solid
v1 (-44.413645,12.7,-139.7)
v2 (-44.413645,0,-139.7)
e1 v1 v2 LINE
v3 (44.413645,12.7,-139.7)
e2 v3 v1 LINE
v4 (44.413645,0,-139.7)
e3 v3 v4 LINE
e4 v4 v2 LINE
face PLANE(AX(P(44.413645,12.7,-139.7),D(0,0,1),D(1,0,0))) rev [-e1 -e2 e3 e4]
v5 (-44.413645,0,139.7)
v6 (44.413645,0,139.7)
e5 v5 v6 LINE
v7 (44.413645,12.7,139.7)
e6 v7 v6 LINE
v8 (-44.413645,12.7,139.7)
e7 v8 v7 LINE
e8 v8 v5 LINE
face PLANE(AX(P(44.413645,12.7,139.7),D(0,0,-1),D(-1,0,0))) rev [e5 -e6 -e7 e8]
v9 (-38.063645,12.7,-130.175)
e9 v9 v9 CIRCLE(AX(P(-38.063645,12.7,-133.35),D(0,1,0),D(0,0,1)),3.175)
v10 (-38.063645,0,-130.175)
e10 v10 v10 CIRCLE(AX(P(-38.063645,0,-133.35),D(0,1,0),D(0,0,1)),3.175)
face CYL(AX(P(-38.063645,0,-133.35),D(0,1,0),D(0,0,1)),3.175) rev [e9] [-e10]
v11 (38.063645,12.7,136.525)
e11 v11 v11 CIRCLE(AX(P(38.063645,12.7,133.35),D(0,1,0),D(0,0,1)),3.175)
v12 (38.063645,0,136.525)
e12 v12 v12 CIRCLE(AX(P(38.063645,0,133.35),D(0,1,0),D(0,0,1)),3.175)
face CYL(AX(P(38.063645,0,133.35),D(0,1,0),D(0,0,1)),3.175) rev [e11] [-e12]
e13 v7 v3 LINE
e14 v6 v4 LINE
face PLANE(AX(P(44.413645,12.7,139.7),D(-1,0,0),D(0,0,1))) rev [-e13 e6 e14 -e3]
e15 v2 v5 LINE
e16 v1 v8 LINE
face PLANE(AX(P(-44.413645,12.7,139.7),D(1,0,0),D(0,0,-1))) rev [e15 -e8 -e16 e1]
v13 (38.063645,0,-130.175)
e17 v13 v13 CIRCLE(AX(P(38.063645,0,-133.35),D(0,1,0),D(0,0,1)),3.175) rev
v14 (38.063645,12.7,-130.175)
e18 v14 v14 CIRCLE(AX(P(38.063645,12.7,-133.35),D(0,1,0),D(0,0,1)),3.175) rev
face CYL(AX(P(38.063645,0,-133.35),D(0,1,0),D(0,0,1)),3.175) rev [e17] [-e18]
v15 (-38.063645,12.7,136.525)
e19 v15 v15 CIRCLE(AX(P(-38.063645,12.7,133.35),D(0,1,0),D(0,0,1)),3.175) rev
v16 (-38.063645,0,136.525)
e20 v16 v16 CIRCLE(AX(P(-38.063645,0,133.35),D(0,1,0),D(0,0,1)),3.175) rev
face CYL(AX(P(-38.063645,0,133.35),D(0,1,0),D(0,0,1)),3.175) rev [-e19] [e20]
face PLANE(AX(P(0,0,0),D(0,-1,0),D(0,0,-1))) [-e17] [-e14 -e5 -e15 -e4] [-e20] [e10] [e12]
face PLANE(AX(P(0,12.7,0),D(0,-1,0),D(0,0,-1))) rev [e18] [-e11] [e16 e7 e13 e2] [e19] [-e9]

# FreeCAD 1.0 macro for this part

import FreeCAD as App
import Part
import Sketcher

V = App.Vector
Q = App.Units.Quantity

doc = App.newDocument("Part")
body = doc.addObject("PartDesign::Body", "Body")

sketch1 = body.newObject("Sketcher::SketchObject", "Sketch")
sketch1.AttachmentSupport = (doc.getObject("XZ_Plane"), [""])
sketch1.MapMode = "FlatFace"
sketch1.addGeometry([
    Part.LineSegment(V(-44, -140, 0), V(-44, 140, 0)),
    Part.LineSegment(V(-44, 140, 0), V(44, 140, 0)),
    Part.LineSegment(V(44, 140, 0), V(44, -140, 0)),
    Part.LineSegment(V(44, -140, 0), V(-44, -140, 0)),
], False)
sketch1.addConstraint([
    Sketcher.Constraint("Coincident", 0, 2, 1, 1),
    Sketcher.Constraint("Coincident", 1, 2, 2, 1),
    Sketcher.Constraint("Coincident", 2, 2, 3, 1),
    Sketcher.Constraint("Coincident", 3, 2, 0, 1),
    Sketcher.Constraint("Vertical", 0),
    Sketcher.Constraint("Horizontal", 1),
    Sketcher.Constraint("Vertical", 2),
    Sketcher.Constraint("Horizontal", 3),
    Sketcher.Constraint("Symmetric", 0, 2, 2, 2, -1, 1),
    Sketcher.Constraint("DistanceY", 0, 1, 0, 2, Q("11 in")),
    Sketcher.Constraint("DistanceX", 1, 1, 1, 2, 88.82729),
])
pad1 = body.newObject("PartDesign::Pad", "Pad")
pad1.Profile = sketch1
pad1.Length = Q("0.5 in")
pad1.Reversed = True

sketch2 = body.newObject("Sketcher::SketchObject", "Sketch001")
sketch2.AttachmentSupport = (doc.getObject("XZ_Plane"), [""])
sketch2.MapMode = "FlatFace"
sketch2.AttachmentOffset = App.Placement(V(0, 0, -0.5 * 25.4), App.Rotation())
sketch2.addGeometry([
    Part.Circle(V(-38.1, 133.3, 0), V(0, 0, 1), 3.2),
    Part.Circle(V(38.1, 133.3, 0), V(0, 0, 1), 3.2),
    Part.Circle(V(-38.1, -133.3, 0), V(0, 0, 1), 3.2),
    Part.Circle(V(38.1, -133.3, 0), V(0, 0, 1), 3.2),
], False)
sketch2.addConstraint([
    Sketcher.Constraint("Equal", 0, 1),
    Sketcher.Constraint("Equal", 1, 2),
    Sketcher.Constraint("Equal", 2, 3),
    Sketcher.Constraint("Symmetric", 1, 3, 2, 3, -1, 1),
    Sketcher.Constraint("Symmetric", 0, 3, 3, 3, -1, 1),
    Sketcher.Constraint("Symmetric", 0, 3, 1, 3, -2),
    Sketcher.Constraint("Diameter", 0, Q("0.25 in")),
    Sketcher.Constraint("DistanceY", 2, 3, 0, 3, Q("10.5 in")),
    Sketcher.Constraint("DistanceX", 0, 3, 1, 3, 76.12729),
])
pocket1 = body.newObject("PartDesign::Pocket", "Pocket")
pocket1.Profile = sketch2
pocket1.Length = Q("0.5 in")
pocket1.Reversed = True

doc.recompute()
